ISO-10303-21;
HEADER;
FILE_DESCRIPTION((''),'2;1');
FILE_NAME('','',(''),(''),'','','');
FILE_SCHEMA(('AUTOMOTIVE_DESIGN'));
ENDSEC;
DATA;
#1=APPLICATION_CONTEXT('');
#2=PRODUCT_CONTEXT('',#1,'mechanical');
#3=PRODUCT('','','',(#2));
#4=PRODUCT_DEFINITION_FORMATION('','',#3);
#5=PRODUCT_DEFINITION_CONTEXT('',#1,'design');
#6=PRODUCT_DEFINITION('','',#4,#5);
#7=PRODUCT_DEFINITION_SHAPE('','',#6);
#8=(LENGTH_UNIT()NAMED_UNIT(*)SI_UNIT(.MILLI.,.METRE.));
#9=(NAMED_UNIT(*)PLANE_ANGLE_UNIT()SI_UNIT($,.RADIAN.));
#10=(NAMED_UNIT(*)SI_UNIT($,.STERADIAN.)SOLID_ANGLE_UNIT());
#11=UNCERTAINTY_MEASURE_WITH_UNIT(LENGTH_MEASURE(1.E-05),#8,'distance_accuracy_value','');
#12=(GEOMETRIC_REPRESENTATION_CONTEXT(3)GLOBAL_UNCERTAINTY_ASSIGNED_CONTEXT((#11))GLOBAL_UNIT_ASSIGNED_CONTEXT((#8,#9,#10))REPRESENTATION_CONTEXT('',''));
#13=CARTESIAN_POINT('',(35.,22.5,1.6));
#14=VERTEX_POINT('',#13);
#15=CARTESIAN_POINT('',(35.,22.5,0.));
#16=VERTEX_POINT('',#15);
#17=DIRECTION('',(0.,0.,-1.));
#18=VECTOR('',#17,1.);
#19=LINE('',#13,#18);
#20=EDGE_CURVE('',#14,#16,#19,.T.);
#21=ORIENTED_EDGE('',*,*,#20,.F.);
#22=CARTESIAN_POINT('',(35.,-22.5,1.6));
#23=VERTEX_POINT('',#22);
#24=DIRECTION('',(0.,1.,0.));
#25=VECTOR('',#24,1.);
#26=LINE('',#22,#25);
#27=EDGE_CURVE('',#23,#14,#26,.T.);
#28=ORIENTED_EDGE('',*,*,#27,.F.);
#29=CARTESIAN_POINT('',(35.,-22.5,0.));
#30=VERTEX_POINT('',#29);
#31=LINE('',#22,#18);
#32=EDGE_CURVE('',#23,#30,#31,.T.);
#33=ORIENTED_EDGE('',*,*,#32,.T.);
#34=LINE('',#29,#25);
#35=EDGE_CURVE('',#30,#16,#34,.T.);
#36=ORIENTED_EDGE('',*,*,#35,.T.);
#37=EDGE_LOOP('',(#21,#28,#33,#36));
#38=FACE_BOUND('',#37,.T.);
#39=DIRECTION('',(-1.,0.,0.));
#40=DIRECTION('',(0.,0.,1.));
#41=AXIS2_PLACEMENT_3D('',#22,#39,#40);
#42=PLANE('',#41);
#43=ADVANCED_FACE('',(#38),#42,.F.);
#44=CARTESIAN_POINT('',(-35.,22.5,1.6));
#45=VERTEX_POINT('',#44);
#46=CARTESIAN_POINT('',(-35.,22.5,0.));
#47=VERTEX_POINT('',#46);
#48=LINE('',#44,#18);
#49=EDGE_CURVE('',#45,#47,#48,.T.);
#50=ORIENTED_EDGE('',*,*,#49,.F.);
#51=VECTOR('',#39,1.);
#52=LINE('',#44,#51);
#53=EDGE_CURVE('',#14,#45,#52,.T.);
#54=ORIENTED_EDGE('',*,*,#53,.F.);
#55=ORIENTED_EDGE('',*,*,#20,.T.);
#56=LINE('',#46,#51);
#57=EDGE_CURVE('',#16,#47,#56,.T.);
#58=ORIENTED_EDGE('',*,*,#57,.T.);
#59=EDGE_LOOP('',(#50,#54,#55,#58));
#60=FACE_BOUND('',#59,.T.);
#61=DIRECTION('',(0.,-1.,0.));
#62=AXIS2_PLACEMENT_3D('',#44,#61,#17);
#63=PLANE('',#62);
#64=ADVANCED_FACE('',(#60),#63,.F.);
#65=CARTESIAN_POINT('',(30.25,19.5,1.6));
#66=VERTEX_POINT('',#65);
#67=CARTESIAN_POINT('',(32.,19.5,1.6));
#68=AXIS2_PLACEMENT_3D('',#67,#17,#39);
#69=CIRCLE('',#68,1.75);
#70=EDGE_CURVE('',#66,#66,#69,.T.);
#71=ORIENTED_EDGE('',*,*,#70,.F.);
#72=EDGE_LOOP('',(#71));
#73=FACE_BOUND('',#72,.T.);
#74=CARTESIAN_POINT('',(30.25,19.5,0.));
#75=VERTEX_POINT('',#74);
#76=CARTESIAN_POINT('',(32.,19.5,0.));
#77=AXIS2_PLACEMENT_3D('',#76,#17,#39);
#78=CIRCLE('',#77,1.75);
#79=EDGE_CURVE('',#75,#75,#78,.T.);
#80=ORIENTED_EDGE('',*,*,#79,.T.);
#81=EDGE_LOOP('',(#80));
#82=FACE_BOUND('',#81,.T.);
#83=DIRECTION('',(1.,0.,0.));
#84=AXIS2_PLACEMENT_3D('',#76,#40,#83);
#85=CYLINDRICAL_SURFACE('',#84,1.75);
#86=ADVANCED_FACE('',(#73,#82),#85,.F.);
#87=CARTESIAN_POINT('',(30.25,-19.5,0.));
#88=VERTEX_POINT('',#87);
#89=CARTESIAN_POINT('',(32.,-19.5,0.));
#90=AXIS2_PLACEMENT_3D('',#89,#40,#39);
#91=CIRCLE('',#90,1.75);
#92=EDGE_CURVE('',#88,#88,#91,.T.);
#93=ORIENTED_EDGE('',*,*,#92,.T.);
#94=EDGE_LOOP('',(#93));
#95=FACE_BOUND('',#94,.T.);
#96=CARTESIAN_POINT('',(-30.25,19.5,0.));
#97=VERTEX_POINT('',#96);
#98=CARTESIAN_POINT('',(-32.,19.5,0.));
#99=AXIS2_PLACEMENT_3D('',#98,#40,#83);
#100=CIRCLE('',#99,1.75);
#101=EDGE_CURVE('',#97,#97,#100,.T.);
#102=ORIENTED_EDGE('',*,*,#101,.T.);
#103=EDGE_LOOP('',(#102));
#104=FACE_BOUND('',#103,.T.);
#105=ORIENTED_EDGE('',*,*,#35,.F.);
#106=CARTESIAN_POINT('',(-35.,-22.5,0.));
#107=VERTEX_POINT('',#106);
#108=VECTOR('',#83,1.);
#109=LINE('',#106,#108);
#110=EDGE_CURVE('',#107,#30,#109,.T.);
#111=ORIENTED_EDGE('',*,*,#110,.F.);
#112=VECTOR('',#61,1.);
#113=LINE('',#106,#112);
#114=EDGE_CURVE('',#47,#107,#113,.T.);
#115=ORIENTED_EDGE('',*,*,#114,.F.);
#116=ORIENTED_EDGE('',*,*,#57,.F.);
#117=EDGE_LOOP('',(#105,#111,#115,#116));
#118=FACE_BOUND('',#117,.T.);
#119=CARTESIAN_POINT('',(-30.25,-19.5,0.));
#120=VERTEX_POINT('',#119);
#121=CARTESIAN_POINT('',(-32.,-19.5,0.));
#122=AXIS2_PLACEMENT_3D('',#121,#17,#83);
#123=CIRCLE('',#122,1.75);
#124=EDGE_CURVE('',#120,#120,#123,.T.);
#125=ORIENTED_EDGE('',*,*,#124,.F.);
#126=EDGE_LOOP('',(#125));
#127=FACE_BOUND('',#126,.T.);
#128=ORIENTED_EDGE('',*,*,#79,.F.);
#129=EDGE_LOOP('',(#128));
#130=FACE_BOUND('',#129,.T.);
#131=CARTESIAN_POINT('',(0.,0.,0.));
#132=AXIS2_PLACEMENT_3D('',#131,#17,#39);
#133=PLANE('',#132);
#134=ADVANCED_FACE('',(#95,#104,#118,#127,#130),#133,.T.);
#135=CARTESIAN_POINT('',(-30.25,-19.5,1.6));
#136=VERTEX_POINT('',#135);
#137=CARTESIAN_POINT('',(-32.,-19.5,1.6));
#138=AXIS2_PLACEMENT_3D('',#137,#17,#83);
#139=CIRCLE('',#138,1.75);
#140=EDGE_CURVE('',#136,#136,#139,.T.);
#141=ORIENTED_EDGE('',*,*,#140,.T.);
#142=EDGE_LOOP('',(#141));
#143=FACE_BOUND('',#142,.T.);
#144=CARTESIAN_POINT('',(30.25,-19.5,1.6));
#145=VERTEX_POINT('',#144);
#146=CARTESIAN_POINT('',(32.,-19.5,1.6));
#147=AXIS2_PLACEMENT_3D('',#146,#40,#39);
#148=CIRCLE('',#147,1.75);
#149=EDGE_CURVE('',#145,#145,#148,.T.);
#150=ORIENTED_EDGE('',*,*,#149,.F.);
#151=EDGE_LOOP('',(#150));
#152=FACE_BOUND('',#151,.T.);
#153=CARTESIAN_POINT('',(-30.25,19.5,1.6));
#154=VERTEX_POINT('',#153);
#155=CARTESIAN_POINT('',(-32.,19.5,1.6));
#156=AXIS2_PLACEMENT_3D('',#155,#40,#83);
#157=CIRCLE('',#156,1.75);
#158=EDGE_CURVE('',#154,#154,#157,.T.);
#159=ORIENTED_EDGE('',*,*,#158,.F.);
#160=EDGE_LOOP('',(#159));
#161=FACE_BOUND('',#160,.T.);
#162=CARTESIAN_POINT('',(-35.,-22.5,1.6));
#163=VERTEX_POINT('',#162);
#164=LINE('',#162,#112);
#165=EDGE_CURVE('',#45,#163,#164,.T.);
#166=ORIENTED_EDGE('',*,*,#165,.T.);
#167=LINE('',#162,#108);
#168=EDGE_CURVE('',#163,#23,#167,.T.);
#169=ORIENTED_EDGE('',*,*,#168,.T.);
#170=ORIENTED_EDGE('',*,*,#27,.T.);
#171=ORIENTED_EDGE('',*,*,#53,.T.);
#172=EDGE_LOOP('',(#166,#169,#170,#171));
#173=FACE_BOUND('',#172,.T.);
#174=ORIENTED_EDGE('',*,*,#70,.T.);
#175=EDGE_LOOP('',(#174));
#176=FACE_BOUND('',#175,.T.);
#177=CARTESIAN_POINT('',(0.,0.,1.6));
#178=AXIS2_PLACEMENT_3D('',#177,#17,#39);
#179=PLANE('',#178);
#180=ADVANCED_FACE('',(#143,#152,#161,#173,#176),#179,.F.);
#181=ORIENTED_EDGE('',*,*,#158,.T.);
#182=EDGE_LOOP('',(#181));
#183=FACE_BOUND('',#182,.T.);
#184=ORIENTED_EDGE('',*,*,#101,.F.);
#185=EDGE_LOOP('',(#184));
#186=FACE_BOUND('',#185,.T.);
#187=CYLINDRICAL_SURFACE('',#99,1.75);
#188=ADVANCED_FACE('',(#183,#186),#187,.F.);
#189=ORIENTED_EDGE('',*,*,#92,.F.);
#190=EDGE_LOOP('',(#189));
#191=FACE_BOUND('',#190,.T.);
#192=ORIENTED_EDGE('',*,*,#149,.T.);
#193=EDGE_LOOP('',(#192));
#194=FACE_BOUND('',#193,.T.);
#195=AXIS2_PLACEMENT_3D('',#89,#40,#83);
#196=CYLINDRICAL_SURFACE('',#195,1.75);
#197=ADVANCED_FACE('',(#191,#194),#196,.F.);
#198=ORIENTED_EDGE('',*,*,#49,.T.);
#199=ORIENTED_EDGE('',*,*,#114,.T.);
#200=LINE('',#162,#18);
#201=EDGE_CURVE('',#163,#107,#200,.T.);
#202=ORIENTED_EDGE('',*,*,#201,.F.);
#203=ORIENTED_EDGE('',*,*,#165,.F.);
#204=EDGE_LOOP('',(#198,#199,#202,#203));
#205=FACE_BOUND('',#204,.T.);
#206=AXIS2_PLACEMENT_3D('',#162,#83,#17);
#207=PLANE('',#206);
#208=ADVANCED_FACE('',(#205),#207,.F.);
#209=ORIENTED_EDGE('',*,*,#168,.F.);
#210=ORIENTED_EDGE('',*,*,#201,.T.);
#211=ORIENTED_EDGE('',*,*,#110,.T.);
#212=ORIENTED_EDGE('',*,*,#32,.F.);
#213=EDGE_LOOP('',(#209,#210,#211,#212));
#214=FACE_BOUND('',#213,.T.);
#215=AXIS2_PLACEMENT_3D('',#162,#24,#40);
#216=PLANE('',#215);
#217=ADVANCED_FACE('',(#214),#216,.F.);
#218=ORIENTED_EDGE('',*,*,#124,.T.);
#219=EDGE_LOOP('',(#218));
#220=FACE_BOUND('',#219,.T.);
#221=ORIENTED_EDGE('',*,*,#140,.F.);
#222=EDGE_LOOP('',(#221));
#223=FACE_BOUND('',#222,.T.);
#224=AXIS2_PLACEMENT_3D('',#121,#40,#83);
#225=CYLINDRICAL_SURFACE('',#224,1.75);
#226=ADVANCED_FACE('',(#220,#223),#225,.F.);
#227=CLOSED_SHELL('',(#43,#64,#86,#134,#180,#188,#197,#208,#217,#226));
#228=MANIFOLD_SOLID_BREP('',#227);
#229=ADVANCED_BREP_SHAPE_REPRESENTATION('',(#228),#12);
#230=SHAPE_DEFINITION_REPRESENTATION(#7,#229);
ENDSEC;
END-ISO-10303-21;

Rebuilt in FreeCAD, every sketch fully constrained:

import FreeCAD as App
import Part
import Sketcher
Q = App.Units.Quantity

doc = App.newDocument("Part")
body = doc.addObject("PartDesign::Body", "Body")

sketch1 = body.newObject("Sketcher::SketchObject", "Sketch")
sketch1.AttachmentSupport = (doc.getObject("XY_Plane"), [""])
sketch1.MapMode = "FlatFace"
sketch1.addGeometry(Part.LineSegment(App.Vector(-35, 22, 0), App.Vector(-35, -22, 0)), False)
sketch1.addGeometry(Part.LineSegment(App.Vector(-35, -22, 0), App.Vector(35, -22, 0)), False)
sketch1.addGeometry(Part.LineSegment(App.Vector(35, -22, 0), App.Vector(35, 22, 0)), False)
sketch1.addGeometry(Part.LineSegment(App.Vector(35, 22, 0), App.Vector(-35, 22, 0)), False)
sketch1.addConstraint(Sketcher.Constraint("Coincident", 0, 2, 1, 1))
sketch1.addConstraint(Sketcher.Constraint("Coincident", 1, 2, 2, 1))
sketch1.addConstraint(Sketcher.Constraint("Coincident", 2, 2, 3, 1))
sketch1.addConstraint(Sketcher.Constraint("Coincident", 3, 2, 0, 1))
sketch1.addConstraint(Sketcher.Constraint("Vertical", 0))
sketch1.addConstraint(Sketcher.Constraint("Horizontal", 1))
sketch1.addConstraint(Sketcher.Constraint("Vertical", 2))
sketch1.addConstraint(Sketcher.Constraint("Horizontal", 3))
sketch1.addConstraint(Sketcher.Constraint("Symmetric", 0, 2, 2, 2, -1, 1))
sketch1.addConstraint(Sketcher.Constraint("DistanceX", 1, 1, 1, 2, Q("70 mm")))
sketch1.addConstraint(Sketcher.Constraint("DistanceY", 0, 2, 0, 1, Q("45 mm")))
pad1 = body.newObject("PartDesign::Pad", "Pad")
pad1.Profile = sketch1
pad1.Length = 1.6

sketch2 = body.newObject("Sketcher::SketchObject", "Sketch001")
sketch2.AttachmentSupport = (doc.getObject("XY_Plane"), [""])
sketch2.MapMode = "FlatFace"
sketch2.AttachmentOffset = App.Placement(App.Vector(0, 0, 1.6), App.Rotation())
sketch2.addGeometry(Part.Circle(App.Vector(-32, 19.5, 0), App.Vector(0, 0, 1), 1.8), False)
sketch2.addConstraint(Sketcher.Constraint("Diameter", 0, Q("3.5 mm")))
sketch2.addConstraint(Sketcher.Constraint("DistanceX", 0, 3, -1, 1, Q("32 mm")))
sketch2.addConstraint(Sketcher.Constraint("DistanceY", -1, 1, 0, 3, Q("19.5 mm")))
pocket1 = body.newObject("PartDesign::Pocket", "Pocket")
pocket1.Profile = sketch2
pocket1.Type = "ThroughAll"
doc.recompute()

mirrored = body.newObject("PartDesign::Mirrored", "Mirrored")
mirrored.Originals = [pocket1]
mirrored.MirrorPlane = (doc.getObject("XZ_Plane"), [""])
body.Tip = mirrored
doc.recompute()

mirrored2 = body.newObject("PartDesign::Mirrored", "Mirrored001")
mirrored2.Originals = [pocket1]
mirrored2.MirrorPlane = (doc.getObject("YZ_Plane"), [""])
body.Tip = mirrored2

sketch3 = body.newObject("Sketcher::SketchObject", "Sketch002")
sketch3.AttachmentSupport = (doc.getObject("XY_Plane"), [""])
sketch3.MapMode = "FlatFace"
sketch3.AttachmentOffset = App.Placement(App.Vector(0, 0, 1.6), App.Rotation())
sketch3.addGeometry(Part.Circle(App.Vector(32, -19.5, 0), App.Vector(0, 0, 1), 1.8), False)
sketch3.addConstraint(Sketcher.Constraint("Diameter", 0, Q("3.5 mm")))
sketch3.addConstraint(Sketcher.Constraint("DistanceX", -1, 1, 0, 3, Q("32 mm")))
sketch3.addConstraint(Sketcher.Constraint("DistanceY", 0, 3, -1, 1, Q("19.5 mm")))
pocket2 = body.newObject("PartDesign::Pocket", "Pocket001")
pocket2.Profile = sketch3
pocket2.Type = "ThroughAll"

doc.recompute()
